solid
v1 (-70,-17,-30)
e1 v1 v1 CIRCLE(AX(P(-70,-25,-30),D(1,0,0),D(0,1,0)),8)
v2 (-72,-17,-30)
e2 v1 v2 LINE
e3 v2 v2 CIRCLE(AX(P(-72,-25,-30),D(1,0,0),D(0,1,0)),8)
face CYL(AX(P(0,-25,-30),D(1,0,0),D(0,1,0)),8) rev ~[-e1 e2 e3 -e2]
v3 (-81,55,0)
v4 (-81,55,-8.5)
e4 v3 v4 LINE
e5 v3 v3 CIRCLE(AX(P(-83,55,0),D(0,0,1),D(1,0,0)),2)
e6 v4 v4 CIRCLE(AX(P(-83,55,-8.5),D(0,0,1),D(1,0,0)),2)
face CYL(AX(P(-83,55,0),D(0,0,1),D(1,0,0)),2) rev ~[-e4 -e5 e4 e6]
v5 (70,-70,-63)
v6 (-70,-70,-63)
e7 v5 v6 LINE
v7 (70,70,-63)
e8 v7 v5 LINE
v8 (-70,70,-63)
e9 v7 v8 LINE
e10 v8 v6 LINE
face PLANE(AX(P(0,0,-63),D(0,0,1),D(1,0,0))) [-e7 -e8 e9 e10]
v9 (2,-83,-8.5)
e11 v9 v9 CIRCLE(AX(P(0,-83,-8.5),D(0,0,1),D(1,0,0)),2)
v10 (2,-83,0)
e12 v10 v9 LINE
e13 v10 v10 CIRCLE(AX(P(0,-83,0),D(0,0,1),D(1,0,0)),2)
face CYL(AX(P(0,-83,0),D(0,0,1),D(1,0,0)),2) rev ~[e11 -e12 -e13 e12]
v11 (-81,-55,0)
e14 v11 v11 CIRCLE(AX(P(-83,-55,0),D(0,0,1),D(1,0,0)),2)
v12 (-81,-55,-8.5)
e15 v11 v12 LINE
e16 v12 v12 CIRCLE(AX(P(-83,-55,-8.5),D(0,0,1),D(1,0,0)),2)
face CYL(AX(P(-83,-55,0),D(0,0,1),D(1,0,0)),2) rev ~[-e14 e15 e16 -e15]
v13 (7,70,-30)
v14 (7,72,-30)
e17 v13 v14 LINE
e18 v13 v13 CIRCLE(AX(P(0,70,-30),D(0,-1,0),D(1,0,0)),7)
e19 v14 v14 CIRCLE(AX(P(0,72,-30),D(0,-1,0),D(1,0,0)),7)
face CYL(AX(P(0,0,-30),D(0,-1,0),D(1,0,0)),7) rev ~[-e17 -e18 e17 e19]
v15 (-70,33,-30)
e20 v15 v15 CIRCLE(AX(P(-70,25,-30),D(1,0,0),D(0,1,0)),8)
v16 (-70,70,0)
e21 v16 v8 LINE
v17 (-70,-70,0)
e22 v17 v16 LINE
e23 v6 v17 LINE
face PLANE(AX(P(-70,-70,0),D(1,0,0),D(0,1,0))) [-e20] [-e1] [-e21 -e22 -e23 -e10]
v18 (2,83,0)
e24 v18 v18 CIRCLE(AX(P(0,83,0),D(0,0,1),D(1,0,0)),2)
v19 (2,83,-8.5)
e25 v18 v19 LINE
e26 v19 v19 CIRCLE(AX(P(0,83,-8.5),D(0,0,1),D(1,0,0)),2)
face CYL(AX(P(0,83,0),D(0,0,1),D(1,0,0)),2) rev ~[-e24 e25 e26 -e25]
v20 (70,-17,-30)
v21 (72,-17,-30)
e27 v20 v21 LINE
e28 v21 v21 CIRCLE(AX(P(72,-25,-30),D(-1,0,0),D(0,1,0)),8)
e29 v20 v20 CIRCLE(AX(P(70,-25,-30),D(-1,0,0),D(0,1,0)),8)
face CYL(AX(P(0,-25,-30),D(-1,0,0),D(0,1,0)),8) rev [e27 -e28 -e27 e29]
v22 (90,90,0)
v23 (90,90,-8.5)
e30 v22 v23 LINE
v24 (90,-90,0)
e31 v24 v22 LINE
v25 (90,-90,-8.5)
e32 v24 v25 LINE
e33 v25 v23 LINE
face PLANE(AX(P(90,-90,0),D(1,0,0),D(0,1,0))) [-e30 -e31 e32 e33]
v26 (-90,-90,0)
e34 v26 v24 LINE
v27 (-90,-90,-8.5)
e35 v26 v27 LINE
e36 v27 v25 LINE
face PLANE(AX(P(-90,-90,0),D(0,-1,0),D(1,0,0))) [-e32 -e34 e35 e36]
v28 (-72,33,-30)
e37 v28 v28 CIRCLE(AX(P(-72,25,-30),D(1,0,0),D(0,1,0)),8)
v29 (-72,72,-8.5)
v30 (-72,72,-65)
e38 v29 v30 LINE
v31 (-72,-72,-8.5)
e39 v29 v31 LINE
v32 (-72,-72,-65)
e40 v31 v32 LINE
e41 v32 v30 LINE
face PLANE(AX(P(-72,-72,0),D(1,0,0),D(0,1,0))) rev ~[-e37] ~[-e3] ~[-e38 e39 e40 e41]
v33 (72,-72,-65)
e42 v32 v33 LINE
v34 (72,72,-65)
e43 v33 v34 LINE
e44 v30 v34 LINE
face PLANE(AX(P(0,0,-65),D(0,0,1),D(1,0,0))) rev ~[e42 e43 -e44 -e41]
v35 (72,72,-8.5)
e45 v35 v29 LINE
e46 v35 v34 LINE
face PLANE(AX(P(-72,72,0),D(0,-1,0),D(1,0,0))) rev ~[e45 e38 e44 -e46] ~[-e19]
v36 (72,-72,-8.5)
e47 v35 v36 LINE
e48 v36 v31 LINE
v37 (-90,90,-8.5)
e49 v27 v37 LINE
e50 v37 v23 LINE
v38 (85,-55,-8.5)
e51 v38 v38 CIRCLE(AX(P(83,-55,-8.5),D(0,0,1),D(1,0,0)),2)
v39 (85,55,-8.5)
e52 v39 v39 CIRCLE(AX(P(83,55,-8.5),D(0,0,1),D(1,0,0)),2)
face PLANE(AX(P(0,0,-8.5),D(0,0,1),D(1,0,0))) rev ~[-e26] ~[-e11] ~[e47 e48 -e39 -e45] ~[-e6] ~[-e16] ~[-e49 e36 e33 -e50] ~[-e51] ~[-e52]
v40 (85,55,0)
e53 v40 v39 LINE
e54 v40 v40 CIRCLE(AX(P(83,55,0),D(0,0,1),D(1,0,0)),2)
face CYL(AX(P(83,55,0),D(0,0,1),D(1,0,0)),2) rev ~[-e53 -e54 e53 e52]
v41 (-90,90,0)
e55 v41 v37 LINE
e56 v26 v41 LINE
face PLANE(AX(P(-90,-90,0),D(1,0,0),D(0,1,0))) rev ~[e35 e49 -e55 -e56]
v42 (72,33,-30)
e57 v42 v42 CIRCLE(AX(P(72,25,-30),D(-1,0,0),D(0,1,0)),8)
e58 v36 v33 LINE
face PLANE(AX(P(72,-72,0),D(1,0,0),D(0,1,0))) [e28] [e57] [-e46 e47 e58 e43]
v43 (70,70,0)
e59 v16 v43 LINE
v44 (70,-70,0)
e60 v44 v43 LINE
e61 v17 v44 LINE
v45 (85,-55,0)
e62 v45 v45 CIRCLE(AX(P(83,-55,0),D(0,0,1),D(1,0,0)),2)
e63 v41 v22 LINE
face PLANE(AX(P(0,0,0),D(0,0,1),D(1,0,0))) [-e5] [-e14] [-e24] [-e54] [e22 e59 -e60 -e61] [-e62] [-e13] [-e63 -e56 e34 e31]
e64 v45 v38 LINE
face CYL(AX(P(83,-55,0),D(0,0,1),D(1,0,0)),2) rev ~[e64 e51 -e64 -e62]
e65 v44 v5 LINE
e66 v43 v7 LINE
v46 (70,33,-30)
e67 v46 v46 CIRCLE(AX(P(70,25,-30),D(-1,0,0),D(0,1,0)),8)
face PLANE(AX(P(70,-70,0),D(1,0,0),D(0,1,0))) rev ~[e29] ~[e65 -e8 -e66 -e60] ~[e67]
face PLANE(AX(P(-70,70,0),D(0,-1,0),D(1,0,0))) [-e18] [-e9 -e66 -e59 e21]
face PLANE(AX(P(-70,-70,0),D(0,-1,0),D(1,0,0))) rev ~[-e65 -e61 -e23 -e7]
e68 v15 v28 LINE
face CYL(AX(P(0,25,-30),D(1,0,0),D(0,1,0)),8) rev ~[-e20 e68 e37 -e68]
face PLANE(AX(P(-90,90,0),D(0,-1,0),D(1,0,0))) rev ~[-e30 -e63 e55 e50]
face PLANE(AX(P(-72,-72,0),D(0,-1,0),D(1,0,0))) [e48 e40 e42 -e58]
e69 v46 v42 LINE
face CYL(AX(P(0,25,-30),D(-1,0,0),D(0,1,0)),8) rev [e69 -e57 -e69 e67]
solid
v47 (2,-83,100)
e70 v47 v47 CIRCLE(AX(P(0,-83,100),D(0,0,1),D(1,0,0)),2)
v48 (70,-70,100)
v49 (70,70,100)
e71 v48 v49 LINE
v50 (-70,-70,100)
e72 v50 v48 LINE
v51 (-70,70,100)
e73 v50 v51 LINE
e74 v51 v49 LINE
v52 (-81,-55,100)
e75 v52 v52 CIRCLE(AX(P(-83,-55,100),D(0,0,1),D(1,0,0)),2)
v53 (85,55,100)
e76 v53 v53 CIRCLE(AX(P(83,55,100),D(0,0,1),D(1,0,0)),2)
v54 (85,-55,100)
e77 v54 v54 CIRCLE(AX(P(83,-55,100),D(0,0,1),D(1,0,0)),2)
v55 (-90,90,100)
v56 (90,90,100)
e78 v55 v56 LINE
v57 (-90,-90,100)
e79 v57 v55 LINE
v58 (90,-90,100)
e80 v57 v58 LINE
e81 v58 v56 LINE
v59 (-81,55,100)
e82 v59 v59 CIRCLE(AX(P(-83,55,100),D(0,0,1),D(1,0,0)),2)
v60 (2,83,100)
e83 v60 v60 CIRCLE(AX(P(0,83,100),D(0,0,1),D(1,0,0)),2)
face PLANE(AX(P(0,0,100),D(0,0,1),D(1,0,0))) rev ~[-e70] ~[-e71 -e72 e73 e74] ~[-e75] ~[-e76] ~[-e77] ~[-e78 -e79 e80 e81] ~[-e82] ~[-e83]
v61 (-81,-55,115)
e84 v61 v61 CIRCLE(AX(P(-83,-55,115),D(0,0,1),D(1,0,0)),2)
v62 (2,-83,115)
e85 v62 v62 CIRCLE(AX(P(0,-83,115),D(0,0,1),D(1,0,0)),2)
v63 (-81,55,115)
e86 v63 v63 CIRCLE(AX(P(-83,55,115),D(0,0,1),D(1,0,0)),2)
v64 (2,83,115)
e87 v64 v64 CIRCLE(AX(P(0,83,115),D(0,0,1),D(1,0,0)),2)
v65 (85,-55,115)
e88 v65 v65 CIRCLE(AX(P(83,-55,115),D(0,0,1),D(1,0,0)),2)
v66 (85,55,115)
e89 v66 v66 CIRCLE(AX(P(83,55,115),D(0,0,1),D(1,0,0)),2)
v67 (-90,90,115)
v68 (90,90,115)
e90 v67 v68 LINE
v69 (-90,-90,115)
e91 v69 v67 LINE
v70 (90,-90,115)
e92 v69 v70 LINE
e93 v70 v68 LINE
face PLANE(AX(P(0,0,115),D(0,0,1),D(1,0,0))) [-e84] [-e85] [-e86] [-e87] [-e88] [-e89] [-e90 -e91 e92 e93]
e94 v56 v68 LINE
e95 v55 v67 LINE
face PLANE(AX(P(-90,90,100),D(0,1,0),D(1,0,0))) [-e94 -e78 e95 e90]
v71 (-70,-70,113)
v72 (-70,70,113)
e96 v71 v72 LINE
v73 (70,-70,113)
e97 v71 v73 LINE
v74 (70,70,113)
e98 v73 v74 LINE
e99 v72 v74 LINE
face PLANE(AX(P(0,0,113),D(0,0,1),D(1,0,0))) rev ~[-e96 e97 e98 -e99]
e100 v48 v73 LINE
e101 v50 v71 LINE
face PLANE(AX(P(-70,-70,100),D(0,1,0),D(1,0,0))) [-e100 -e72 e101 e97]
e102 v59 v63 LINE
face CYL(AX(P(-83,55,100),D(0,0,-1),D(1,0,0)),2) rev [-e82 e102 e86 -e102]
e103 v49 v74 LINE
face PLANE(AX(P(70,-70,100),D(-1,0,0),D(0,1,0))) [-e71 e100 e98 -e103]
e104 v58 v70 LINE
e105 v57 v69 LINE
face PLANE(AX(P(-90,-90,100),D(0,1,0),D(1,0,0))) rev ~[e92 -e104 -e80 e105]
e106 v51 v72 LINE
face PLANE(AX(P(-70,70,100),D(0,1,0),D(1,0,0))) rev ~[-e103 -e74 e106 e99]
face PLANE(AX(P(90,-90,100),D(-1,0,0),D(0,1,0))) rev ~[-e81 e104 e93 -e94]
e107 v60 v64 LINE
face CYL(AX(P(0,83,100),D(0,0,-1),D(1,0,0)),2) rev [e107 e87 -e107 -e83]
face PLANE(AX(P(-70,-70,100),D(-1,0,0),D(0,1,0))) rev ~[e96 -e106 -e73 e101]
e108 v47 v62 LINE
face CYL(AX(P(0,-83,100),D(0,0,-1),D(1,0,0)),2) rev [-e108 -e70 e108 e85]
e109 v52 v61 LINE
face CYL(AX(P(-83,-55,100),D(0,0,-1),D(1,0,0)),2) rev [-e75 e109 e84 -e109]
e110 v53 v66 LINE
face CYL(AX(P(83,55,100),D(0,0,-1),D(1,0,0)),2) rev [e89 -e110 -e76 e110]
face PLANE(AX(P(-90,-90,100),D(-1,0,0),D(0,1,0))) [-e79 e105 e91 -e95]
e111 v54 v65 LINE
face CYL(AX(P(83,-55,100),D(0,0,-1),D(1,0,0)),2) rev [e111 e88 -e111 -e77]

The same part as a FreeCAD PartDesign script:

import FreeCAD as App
import Part
import Sketcher

V = App.Vector
Q = App.Units.Quantity


def faces_at(feature, points):
    """Names of the faces that lie closest to the given points."""
    faces = feature.Shape.Faces
    near = lambda p: min(range(len(faces)), key=lambda i: faces[i].distToShape(Part.Vertex(*p))[0])
    return sorted({f"Face{near(p) + 1}" for p in points})


def add_polygon(sketch, points):
    """Adds a closed chain of lines whose ends are joined by coincident constraints."""
    first, n = sketch.GeometryCount, len(points)
    for a, b in zip(points, points[1:] + points[:1]):
        sketch.addGeometry(Part.LineSegment(App.Vector(*a, 0), App.Vector(*b, 0)), False)
    for i in range(n):
        sketch.addConstraint(Sketcher.Constraint("Coincident", first + i, 2, first + (i + 1) % n, 1))

doc = App.newDocument("Part")
body = doc.addObject("PartDesign::Body", "Body")

# Sketch on XY plane
sketch1 = body.newObject("Sketcher::SketchObject", "Sketch")
sketch1.AttachmentSupport = (doc.getObject("XY_Plane"), [""])
sketch1.MapMode = "FlatFace"
add_polygon(sketch1, [(-72, 72), (-72, -72), (72, -72), (72, 72)])  # lines 0-3
sketch1.addConstraint([
    Sketcher.Constraint("Vertical", 0),
    Sketcher.Constraint("Horizontal", 1),
    Sketcher.Constraint("Vertical", 2),
    Sketcher.Constraint("Horizontal", 3),
    Sketcher.Constraint("Symmetric", 0, 2, 2, 2, -1, 1),
    Sketcher.Constraint("Equal", 3, 0),
    Sketcher.Constraint("DistanceX", 1, 1, 1, 2, Q("144 mm")),
])
pad1 = body.newObject("PartDesign::Pad", "Pad")
pad1.Profile = sketch1
pad1.Length = 65
pad1.Reversed = True
doc.recompute()

thickness = body.newObject("PartDesign::Thickness", "Thickness")
thickness.Base = (pad1, faces_at(pad1, [(0, 0, 0)]))
thickness.Value = 2
thickness.Reversed = True
thickness.Join = "Arc"

# Sketch on XY plane
sketch2 = body.newObject("Sketcher::SketchObject", "Sketch001")
sketch2.AttachmentSupport = (doc.getObject("XY_Plane"), [""])
sketch2.MapMode = "FlatFace"
add_polygon(sketch2, [(-90, 90), (-90, -90), (90, -90), (90, 90)])  # lines 0-3
sketch2.addConstraint([
    Sketcher.Constraint("Vertical", 0),
    Sketcher.Constraint("Horizontal", 1),
    Sketcher.Constraint("Vertical", 2),
    Sketcher.Constraint("Horizontal", 3),
    Sketcher.Constraint("Symmetric", 0, 2, 2, 2, -1, 1),
    Sketcher.Constraint("Equal", 3, 0),
    Sketcher.Constraint("DistanceX", 1, 1, 1, 2, Q("180 mm")),
])
pad2 = body.newObject("PartDesign::Pad", "Pad001")
pad2.Profile = sketch2
pad2.Length = 8.5
pad2.Reversed = True

# Sketch on XY plane
sketch3 = body.newObject("Sketcher::SketchObject", "Sketch002")
sketch3.AttachmentSupport = (doc.getObject("XY_Plane"), [""])
sketch3.MapMode = "FlatFace"
add_polygon(sketch3, [(-70, 70), (-70, -70), (70, -70), (70, 70)])  # lines 0-3
sketch3.addConstraint([
    Sketcher.Constraint("Vertical", 0),
    Sketcher.Constraint("Horizontal", 1),
    Sketcher.Constraint("Vertical", 2),
    Sketcher.Constraint("Horizontal", 3),
    Sketcher.Constraint("Symmetric", 0, 2, 2, 2, -1, 1),
    Sketcher.Constraint("Equal", 3, 0),
    Sketcher.Constraint("DistanceX", 1, 1, 1, 2, Q("140 mm")),
])
pocket1 = body.newObject("PartDesign::Pocket", "Pocket")
pocket1.Profile = sketch3
pocket1.Length = 10

# Sketch on XY plane
sketch4 = body.newObject("Sketcher::SketchObject", "Sketch003")
sketch4.AttachmentSupport = (doc.getObject("XY_Plane"), [""])
sketch4.MapMode = "FlatFace"
sketch4.addGeometry([
    Part.Circle(V(-83, 55, 0), V(0, 0, 1), 2),
    Part.Circle(V(-83, -55, 0), V(0, 0, 1), 2),
    Part.Circle(V(83, 55, 0), V(0, 0, 1), 2),
    Part.Circle(V(83, -55, 0), V(0, 0, 1), 2),
], False)
sketch4.addConstraint([
    Sketcher.Constraint("Equal", 0, 1),
    Sketcher.Constraint("Equal", 1, 2),
    Sketcher.Constraint("Equal", 2, 3),
    Sketcher.Constraint("Symmetric", 1, 3, 2, 3, -1, 1),
    Sketcher.Constraint("Symmetric", 0, 3, 3, 3, -1, 1),
    Sketcher.Constraint("Symmetric", 0, 3, 2, 3, -2),
    Sketcher.Constraint("Diameter", 0, Q("4 mm")),
    Sketcher.Constraint("DistanceX", 0, 3, -1, 1, Q("83 mm")),
    Sketcher.Constraint("DistanceY", -1, 1, 0, 3, Q("55 mm")),
])
pocket2 = body.newObject("PartDesign::Pocket", "Pocket001")
pocket2.Profile = sketch4
pocket2.Type = "ThroughAll"
pocket2.Midplane = True

# Sketch on XY plane
sketch5 = body.newObject("Sketcher::SketchObject", "Sketch004")
sketch5.AttachmentSupport = (doc.getObject("XY_Plane"), [""])
sketch5.MapMode = "FlatFace"
sketch5.addGeometry([
    Part.Circle(V(0, 83, 0), V(0, 0, 1), 2),
    Part.Circle(V(0, -83, 0), V(0, 0, 1), 2),
], False)
sketch5.addConstraint([
    Sketcher.Constraint("Equal", 0, 1),
    Sketcher.Constraint("Symmetric", 0, 3, 1, 3, -1, 1),
    Sketcher.Constraint("PointOnObject", 0, 3, -2),
    Sketcher.Constraint("Diameter", 0, Q("4 mm")),
    Sketcher.Constraint("DistanceY", -1, 1, 0, 3, Q("83 mm")),
])
pocket3 = body.newObject("PartDesign::Pocket", "Pocket002")
pocket3.Profile = sketch5
pocket3.Type = "ThroughAll"
pocket3.Midplane = True

# Sketch on YZ plane
sketch6 = body.newObject("Sketcher::SketchObject", "Sketch005")
sketch6.AttachmentSupport = (doc.getObject("YZ_Plane"), [""])
sketch6.MapMode = "FlatFace"
sketch6.addGeometry([
    Part.Circle(V(-25, -30, 0), V(0, 0, 1), 8),
    Part.Circle(V(25, -30, 0), V(0, 0, 1), 8),
], False)
sketch6.addConstraint([
    Sketcher.Constraint("Equal", 0, 1),
    Sketcher.Constraint("Symmetric", 0, 3, 1, 3, -2),
    Sketcher.Constraint("Diameter", 0, Q("16 mm")),
    Sketcher.Constraint("DistanceX", 0, 3, -1, 1, Q("25 mm")),
    Sketcher.Constraint("DistanceY", 0, 3, -1, 1, Q("30 mm")),
])
pocket4 = body.newObject("PartDesign::Pocket", "Pocket003")
pocket4.Profile = sketch6
pocket4.Type = "ThroughAll"
pocket4.Midplane = True

# Sketch on XZ plane
sketch7 = body.newObject("Sketcher::SketchObject", "Sketch006")
sketch7.AttachmentSupport = (doc.getObject("XZ_Plane"), [""])
sketch7.MapMode = "FlatFace"
sketch7.addGeometry(Part.Circle(V(0, -30, 0), V(0, 0, 1), 7), False)
sketch7.addConstraint([
    Sketcher.Constraint("PointOnObject", 0, 3, -2),
    Sketcher.Constraint("Diameter", 0, Q("14 mm")),
    Sketcher.Constraint("DistanceY", 0, 3, -1, 1, Q("30 mm")),
])
pocket5 = body.newObject("PartDesign::Pocket", "Pocket004")
pocket5.Profile = sketch7
pocket5.Length = 100
body2 = doc.addObject("PartDesign::Body", "Body001")

# Sketch on XY plane
sketch8 = body2.newObject("Sketcher::SketchObject", "Sketch007")
sketch8.AttachmentSupport = (doc.getObject("XY_Plane001"), [""])
sketch8.MapMode = "FlatFace"
sketch8.AttachmentOffset = App.Placement(V(0, 0, 100), App.Rotation())
add_polygon(sketch8, [(-90, 90), (-90, -90), (90, -90), (90, 90)])  # lines 0-3
sketch8.addConstraint([
    Sketcher.Constraint("Vertical", 0),
    Sketcher.Constraint("Horizontal", 1),
    Sketcher.Constraint("Vertical", 2),
    Sketcher.Constraint("Horizontal", 3),
    Sketcher.Constraint("Symmetric", 0, 2, 2, 2, -1, 1),
    Sketcher.Constraint("Equal", 3, 0),
    Sketcher.Constraint("DistanceX", 1, 1, 1, 2, Q("180 mm")),
])
pad3 = body2.newObject("PartDesign::Pad", "Pad002")
pad3.Profile = sketch8
pad3.Length = 15

# Sketch on XY plane
sketch9 = body2.newObject("Sketcher::SketchObject", "Sketch008")
sketch9.AttachmentSupport = (doc.getObject("XY_Plane001"), [""])
sketch9.MapMode = "FlatFace"
sketch9.AttachmentOffset = App.Placement(V(0, 0, 100), App.Rotation())
add_polygon(sketch9, [(-70, 70), (-70, -70), (70, -70), (70, 70)])  # lines 0-3
sketch9.addConstraint([
    Sketcher.Constraint("Vertical", 0),
    Sketcher.Constraint("Horizontal", 1),
    Sketcher.Constraint("Vertical", 2),
    Sketcher.Constraint("Horizontal", 3),
    Sketcher.Constraint("Symmetric", 0, 2, 2, 2, -1, 1),
    Sketcher.Constraint("Equal", 3, 0),
    Sketcher.Constraint("DistanceX", 1, 1, 1, 2, Q("140 mm")),
])
pocket6 = body2.newObject("PartDesign::Pocket", "Pocket005")
pocket6.Profile = sketch9
pocket6.Length = 13
pocket6.Reversed = True

# Sketch on XY plane
sketch10 = body2.newObject("Sketcher::SketchObject", "Sketch009")
sketch10.AttachmentSupport = (doc.getObject("XY_Plane001"), [""])
sketch10.MapMode = "FlatFace"
sketch10.AttachmentOffset = App.Placement(V(0, 0, 100), App.Rotation())
sketch10.addGeometry([
    Part.Circle(V(-83, 55, 0), V(0, 0, 1), 2),  # 0
    Part.Circle(V(-83, -55, 0), V(0, 0, 1), 2),  # 1
    Part.Circle(V(0, -83, 0), V(0, 0, 1), 2),  # 2
    Part.Circle(V(83, -55, 0), V(0, 0, 1), 2),  # 3
    Part.Circle(V(0, 83, 0), V(0, 0, 1), 2),  # 4
    Part.Circle(V(83, 55, 0), V(0, 0, 1), 2),  # 5
], False)
sketch10.addConstraint([
    Sketcher.Constraint("Equal", 0, 1),
    Sketcher.Constraint("Equal", 1, 2),
    Sketcher.Constraint("Equal", 2, 3),
    Sketcher.Constraint("Equal", 3, 4),
    Sketcher.Constraint("Equal", 4, 5),
    Sketcher.Constraint("Symmetric", 0, 3, 3, 3, -1, 1),
    Sketcher.Constraint("Symmetric", 2, 3, 4, 3, -1, 1),
    Sketcher.Constraint("Symmetric", 1, 3, 5, 3, -1, 1),
    Sketcher.Constraint("Symmetric", 1, 3, 3, 3, -2),
    Sketcher.Constraint("PointOnObject", 2, 3, -2),
    Sketcher.Constraint("Diameter", 0, Q("4 mm")),
    Sketcher.Constraint("DistanceX", 0, 3, -1, 1, Q("83 mm")),
    Sketcher.Constraint("DistanceY", -1, 1, 0, 3, Q("55 mm")),
    Sketcher.Constraint("DistanceY", 2, 3, -1, 1, Q("83 mm")),
])
pocket7 = body2.newObject("PartDesign::Pocket", "Pocket006")
pocket7.Profile = sketch10
pocket7.Type = "ThroughAll"
pocket7.Reversed = True

doc.recompute()
